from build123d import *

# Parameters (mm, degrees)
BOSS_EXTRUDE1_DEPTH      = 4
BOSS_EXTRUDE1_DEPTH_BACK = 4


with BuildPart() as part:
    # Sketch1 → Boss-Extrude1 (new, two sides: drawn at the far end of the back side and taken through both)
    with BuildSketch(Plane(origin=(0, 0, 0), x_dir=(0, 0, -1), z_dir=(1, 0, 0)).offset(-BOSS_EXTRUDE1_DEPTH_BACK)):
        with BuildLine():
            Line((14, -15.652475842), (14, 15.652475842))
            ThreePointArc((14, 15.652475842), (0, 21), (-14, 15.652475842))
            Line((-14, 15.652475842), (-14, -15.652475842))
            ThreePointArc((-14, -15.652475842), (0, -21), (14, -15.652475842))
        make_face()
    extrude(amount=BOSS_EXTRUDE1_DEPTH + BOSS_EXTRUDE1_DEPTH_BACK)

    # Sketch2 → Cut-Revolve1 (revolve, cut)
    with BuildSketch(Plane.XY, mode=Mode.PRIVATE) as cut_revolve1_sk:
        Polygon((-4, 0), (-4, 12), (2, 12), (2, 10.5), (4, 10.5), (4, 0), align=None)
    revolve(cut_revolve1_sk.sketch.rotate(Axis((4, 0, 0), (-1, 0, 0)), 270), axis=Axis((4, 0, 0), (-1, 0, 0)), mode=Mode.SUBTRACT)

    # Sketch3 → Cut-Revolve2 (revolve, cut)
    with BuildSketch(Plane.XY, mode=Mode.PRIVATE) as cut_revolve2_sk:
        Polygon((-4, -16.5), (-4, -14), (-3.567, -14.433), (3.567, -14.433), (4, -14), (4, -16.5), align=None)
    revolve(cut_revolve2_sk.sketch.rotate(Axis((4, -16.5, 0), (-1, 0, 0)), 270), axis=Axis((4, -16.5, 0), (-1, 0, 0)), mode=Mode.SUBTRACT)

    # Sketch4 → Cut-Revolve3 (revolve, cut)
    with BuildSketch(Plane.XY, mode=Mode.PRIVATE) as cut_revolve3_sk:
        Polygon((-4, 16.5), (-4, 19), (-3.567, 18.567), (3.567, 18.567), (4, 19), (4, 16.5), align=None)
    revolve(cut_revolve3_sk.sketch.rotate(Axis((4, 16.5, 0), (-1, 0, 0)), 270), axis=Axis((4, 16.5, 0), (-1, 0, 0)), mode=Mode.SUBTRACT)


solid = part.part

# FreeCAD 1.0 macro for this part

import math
import FreeCAD as App
import Part
import Sketcher


def add_polygon(sketch, points):
    """Adds a closed chain of lines whose ends are joined by coincident constraints."""
    first, n = sketch.GeometryCount, len(points)
    for a, b in zip(points, points[1:] + points[:1]):
        sketch.addGeometry(Part.LineSegment(App.Vector(*a, 0), App.Vector(*b, 0)), False)
    for i in range(n):
        sketch.addConstraint(Sketcher.Constraint("Coincident", first + i, 2, first + (i + 1) % n, 1))

doc = App.newDocument("Part")
body = doc.addObject("PartDesign::Body", "Body")

sketch1 = body.newObject("Sketcher::SketchObject", "Sketch")
sketch1.AttachmentSupport = (doc.getObject("YZ_Plane"), [""])
sketch1.MapMode = "FlatFace"
sketch1.addGeometry(Part.LineSegment(App.Vector(-15.652476, -14, 0), App.Vector(15.652476, -14, 0)), False)
sketch1.addGeometry(Part.ArcOfCircle(Part.Circle(App.Vector(0, 0, 0), App.Vector(0, 0, 1), 21), math.radians(-41.810315), math.radians(41.810315)), False)
sketch1.addGeometry(Part.LineSegment(App.Vector(15.652476, 14, 0), App.Vector(-15.652476, 14, 0)), False)
sketch1.addGeometry(Part.ArcOfCircle(Part.Circle(App.Vector(0, 0, 0), App.Vector(0, 0, 1), 21), math.radians(138.189685), math.radians(221.810315)), False)
sketch1.addConstraint(Sketcher.Constraint("Coincident", 0, 2, 1, 1))
sketch1.addConstraint(Sketcher.Constraint("Coincident", 1, 2, 2, 1))
sketch1.addConstraint(Sketcher.Constraint("Coincident", 2, 2, 3, 1))
sketch1.addConstraint(Sketcher.Constraint("Coincident", 3, 2, 0, 1))
sketch1.addConstraint(Sketcher.Constraint("Horizontal", 0))
sketch1.addConstraint(Sketcher.Constraint("Horizontal", 2))
sketch1.addConstraint(Sketcher.Constraint("Coincident", 1, 3, -1, 1))
sketch1.addConstraint(Sketcher.Constraint("Coincident", 3, 3, -1, 1))
sketch1.addConstraint(Sketcher.Constraint("Equal", 1, 3))
sketch1.addConstraint(Sketcher.Constraint("Vertical", 0, 2, 1, 2))
sketch1.addConstraint(Sketcher.Constraint("Radius", 1, 21.0))
sketch1.addConstraint(Sketcher.Constraint("DistanceY", 0, 2, -1, 1, 14.0))
pad1 = body.newObject("PartDesign::Pad", "Pad")
pad1.Profile = sketch1
pad1.Type = "TwoLengths"
pad1.Length = 4
pad1.Length2 = 4

sketch2 = body.newObject("Sketcher::SketchObject", "Sketch001")
sketch2.AttachmentSupport = (doc.getObject("XY_Plane"), [""])
sketch2.MapMode = "FlatFace"
add_polygon(sketch2, [(-4, 12), (-4, 0), (4, 0), (4, 10.5), (2, 10.5), (2, 12)])
sketch2.addConstraint(Sketcher.Constraint("Vertical", 0))
sketch2.addConstraint(Sketcher.Constraint("Horizontal", 1))
sketch2.addConstraint(Sketcher.Constraint("Vertical", 2))
sketch2.addConstraint(Sketcher.Constraint("Horizontal", 3))
sketch2.addConstraint(Sketcher.Constraint("Vertical", 4))
sketch2.addConstraint(Sketcher.Constraint("Horizontal", 5))
sketch2.addConstraint(Sketcher.Constraint("Symmetric", 0, 2, 1, 2, -1, 1))
sketch2.addConstraint(Sketcher.Constraint("DistanceX", 1, 1, 1, 2, 8.0))
sketch2.addConstraint(Sketcher.Constraint("DistanceX", 3, 2, 3, 1, 2.0))
sketch2.addConstraint(Sketcher.Constraint("DistanceY", 0, 2, 0, 1, 12.0))
sketch2.addConstraint(Sketcher.Constraint("DistanceY", 2, 1, 2, 2, 10.5))
groove = body.newObject("PartDesign::Groove", "Groove")
groove.Profile = sketch2
groove.ReferenceAxis = (sketch2, ["H_Axis"])
groove.Angle = 360

sketch3 = body.newObject("Sketcher::SketchObject", "Sketch002")
sketch3.AttachmentSupport = (doc.getObject("XY_Plane"), [""])
sketch3.MapMode = "FlatFace"
add_polygon(sketch3, [(-4, -14), (-4, -16.5), (4, -16.5), (4, -14), (3.567, -14.433), (-3.567, -14.433)])
sketch3.addGeometry(Part.LineSegment(App.Vector(4, -16.5, 0), App.Vector(-4, -16.5, 0)), True)
sketch3.addConstraint(Sketcher.Constraint("Vertical", 0))
sketch3.addConstraint(Sketcher.Constraint("Horizontal", 1))
sketch3.addConstraint(Sketcher.Constraint("Vertical", 2))
sketch3.addConstraint(Sketcher.Constraint("Horizontal", 4))
sketch3.addConstraint(Sketcher.Constraint("Horizontal", 6))
sketch3.addConstraint(Sketcher.Constraint("Coincident", 6, 1, 1, 2))
sketch3.addConstraint(Sketcher.Constraint("Symmetric", 2, 2, 5, 2, -2))
sketch3.addConstraint(Sketcher.Constraint("Perpendicular", 3, 5))
sketch3.addConstraint(Sketcher.Constraint("Vertical", 5, 2, 6, 2))
sketch3.addConstraint(Sketcher.Constraint("Equal", 3, 5))
sketch3.addConstraint(Sketcher.Constraint("DistanceX", 1, 1, 1, 2, 8.0))
sketch3.addConstraint(Sketcher.Constraint("DistanceY", 0, 2, 0, 1, 2.5))
sketch3.addConstraint(Sketcher.Constraint("DistanceY", 2, 2, -1, 1, 14.0))
sketch3.addConstraint(Sketcher.Constraint("DistanceX", 4, 2, 4, 1, 7.134))
groove2 = body.newObject("PartDesign::Groove", "Groove001")
groove2.Profile = sketch3
groove2.ReferenceAxis = (sketch3, ["Axis0"])
groove2.Angle = 360

sketch4 = body.newObject("Sketcher::SketchObject", "Sketch003")
sketch4.AttachmentSupport = (doc.getObject("XY_Plane"), [""])
sketch4.MapMode = "FlatFace"
add_polygon(sketch4, [(-4, 19), (-4, 16.5), (4, 16.5), (4, 19), (3.567, 18.567), (-3.567, 18.567)])
sketch4.addGeometry(Part.LineSegment(App.Vector(4, 16.5, 0), App.Vector(-4, 16.5, 0)), True)
sketch4.addConstraint(Sketcher.Constraint("Vertical", 0))
sketch4.addConstraint(Sketcher.Constraint("Horizontal", 1))
sketch4.addConstraint(Sketcher.Constraint("Vertical", 2))
sketch4.addConstraint(Sketcher.Constraint("Horizontal", 4))
sketch4.addConstraint(Sketcher.Constraint("Horizontal", 6))
sketch4.addConstraint(Sketcher.Constraint("Coincident", 6, 1, 1, 2))
sketch4.addConstraint(Sketcher.Constraint("Symmetric", 2, 2, 5, 2, -2))
sketch4.addConstraint(Sketcher.Constraint("Perpendicular", 3, 5))
sketch4.addConstraint(Sketcher.Constraint("Vertical", 5, 2, 6, 2))
sketch4.addConstraint(Sketcher.Constraint("Equal", 3, 5))
sketch4.addConstraint(Sketcher.Constraint("DistanceX", 1, 1, 1, 2, 8.0))
sketch4.addConstraint(Sketcher.Constraint("DistanceY", 0, 2, 0, 1, 2.5))
sketch4.addConstraint(Sketcher.Constraint("DistanceY", -1, 1, 2, 2, 19.0))
sketch4.addConstraint(Sketcher.Constraint("DistanceX", 4, 2, 4, 1, 7.134))
groove3 = body.newObject("PartDesign::Groove", "Groove002")
groove3.Profile = sketch4
groove3.ReferenceAxis = (sketch4, ["Axis0"])
groove3.Angle = 360

doc.recompute()
